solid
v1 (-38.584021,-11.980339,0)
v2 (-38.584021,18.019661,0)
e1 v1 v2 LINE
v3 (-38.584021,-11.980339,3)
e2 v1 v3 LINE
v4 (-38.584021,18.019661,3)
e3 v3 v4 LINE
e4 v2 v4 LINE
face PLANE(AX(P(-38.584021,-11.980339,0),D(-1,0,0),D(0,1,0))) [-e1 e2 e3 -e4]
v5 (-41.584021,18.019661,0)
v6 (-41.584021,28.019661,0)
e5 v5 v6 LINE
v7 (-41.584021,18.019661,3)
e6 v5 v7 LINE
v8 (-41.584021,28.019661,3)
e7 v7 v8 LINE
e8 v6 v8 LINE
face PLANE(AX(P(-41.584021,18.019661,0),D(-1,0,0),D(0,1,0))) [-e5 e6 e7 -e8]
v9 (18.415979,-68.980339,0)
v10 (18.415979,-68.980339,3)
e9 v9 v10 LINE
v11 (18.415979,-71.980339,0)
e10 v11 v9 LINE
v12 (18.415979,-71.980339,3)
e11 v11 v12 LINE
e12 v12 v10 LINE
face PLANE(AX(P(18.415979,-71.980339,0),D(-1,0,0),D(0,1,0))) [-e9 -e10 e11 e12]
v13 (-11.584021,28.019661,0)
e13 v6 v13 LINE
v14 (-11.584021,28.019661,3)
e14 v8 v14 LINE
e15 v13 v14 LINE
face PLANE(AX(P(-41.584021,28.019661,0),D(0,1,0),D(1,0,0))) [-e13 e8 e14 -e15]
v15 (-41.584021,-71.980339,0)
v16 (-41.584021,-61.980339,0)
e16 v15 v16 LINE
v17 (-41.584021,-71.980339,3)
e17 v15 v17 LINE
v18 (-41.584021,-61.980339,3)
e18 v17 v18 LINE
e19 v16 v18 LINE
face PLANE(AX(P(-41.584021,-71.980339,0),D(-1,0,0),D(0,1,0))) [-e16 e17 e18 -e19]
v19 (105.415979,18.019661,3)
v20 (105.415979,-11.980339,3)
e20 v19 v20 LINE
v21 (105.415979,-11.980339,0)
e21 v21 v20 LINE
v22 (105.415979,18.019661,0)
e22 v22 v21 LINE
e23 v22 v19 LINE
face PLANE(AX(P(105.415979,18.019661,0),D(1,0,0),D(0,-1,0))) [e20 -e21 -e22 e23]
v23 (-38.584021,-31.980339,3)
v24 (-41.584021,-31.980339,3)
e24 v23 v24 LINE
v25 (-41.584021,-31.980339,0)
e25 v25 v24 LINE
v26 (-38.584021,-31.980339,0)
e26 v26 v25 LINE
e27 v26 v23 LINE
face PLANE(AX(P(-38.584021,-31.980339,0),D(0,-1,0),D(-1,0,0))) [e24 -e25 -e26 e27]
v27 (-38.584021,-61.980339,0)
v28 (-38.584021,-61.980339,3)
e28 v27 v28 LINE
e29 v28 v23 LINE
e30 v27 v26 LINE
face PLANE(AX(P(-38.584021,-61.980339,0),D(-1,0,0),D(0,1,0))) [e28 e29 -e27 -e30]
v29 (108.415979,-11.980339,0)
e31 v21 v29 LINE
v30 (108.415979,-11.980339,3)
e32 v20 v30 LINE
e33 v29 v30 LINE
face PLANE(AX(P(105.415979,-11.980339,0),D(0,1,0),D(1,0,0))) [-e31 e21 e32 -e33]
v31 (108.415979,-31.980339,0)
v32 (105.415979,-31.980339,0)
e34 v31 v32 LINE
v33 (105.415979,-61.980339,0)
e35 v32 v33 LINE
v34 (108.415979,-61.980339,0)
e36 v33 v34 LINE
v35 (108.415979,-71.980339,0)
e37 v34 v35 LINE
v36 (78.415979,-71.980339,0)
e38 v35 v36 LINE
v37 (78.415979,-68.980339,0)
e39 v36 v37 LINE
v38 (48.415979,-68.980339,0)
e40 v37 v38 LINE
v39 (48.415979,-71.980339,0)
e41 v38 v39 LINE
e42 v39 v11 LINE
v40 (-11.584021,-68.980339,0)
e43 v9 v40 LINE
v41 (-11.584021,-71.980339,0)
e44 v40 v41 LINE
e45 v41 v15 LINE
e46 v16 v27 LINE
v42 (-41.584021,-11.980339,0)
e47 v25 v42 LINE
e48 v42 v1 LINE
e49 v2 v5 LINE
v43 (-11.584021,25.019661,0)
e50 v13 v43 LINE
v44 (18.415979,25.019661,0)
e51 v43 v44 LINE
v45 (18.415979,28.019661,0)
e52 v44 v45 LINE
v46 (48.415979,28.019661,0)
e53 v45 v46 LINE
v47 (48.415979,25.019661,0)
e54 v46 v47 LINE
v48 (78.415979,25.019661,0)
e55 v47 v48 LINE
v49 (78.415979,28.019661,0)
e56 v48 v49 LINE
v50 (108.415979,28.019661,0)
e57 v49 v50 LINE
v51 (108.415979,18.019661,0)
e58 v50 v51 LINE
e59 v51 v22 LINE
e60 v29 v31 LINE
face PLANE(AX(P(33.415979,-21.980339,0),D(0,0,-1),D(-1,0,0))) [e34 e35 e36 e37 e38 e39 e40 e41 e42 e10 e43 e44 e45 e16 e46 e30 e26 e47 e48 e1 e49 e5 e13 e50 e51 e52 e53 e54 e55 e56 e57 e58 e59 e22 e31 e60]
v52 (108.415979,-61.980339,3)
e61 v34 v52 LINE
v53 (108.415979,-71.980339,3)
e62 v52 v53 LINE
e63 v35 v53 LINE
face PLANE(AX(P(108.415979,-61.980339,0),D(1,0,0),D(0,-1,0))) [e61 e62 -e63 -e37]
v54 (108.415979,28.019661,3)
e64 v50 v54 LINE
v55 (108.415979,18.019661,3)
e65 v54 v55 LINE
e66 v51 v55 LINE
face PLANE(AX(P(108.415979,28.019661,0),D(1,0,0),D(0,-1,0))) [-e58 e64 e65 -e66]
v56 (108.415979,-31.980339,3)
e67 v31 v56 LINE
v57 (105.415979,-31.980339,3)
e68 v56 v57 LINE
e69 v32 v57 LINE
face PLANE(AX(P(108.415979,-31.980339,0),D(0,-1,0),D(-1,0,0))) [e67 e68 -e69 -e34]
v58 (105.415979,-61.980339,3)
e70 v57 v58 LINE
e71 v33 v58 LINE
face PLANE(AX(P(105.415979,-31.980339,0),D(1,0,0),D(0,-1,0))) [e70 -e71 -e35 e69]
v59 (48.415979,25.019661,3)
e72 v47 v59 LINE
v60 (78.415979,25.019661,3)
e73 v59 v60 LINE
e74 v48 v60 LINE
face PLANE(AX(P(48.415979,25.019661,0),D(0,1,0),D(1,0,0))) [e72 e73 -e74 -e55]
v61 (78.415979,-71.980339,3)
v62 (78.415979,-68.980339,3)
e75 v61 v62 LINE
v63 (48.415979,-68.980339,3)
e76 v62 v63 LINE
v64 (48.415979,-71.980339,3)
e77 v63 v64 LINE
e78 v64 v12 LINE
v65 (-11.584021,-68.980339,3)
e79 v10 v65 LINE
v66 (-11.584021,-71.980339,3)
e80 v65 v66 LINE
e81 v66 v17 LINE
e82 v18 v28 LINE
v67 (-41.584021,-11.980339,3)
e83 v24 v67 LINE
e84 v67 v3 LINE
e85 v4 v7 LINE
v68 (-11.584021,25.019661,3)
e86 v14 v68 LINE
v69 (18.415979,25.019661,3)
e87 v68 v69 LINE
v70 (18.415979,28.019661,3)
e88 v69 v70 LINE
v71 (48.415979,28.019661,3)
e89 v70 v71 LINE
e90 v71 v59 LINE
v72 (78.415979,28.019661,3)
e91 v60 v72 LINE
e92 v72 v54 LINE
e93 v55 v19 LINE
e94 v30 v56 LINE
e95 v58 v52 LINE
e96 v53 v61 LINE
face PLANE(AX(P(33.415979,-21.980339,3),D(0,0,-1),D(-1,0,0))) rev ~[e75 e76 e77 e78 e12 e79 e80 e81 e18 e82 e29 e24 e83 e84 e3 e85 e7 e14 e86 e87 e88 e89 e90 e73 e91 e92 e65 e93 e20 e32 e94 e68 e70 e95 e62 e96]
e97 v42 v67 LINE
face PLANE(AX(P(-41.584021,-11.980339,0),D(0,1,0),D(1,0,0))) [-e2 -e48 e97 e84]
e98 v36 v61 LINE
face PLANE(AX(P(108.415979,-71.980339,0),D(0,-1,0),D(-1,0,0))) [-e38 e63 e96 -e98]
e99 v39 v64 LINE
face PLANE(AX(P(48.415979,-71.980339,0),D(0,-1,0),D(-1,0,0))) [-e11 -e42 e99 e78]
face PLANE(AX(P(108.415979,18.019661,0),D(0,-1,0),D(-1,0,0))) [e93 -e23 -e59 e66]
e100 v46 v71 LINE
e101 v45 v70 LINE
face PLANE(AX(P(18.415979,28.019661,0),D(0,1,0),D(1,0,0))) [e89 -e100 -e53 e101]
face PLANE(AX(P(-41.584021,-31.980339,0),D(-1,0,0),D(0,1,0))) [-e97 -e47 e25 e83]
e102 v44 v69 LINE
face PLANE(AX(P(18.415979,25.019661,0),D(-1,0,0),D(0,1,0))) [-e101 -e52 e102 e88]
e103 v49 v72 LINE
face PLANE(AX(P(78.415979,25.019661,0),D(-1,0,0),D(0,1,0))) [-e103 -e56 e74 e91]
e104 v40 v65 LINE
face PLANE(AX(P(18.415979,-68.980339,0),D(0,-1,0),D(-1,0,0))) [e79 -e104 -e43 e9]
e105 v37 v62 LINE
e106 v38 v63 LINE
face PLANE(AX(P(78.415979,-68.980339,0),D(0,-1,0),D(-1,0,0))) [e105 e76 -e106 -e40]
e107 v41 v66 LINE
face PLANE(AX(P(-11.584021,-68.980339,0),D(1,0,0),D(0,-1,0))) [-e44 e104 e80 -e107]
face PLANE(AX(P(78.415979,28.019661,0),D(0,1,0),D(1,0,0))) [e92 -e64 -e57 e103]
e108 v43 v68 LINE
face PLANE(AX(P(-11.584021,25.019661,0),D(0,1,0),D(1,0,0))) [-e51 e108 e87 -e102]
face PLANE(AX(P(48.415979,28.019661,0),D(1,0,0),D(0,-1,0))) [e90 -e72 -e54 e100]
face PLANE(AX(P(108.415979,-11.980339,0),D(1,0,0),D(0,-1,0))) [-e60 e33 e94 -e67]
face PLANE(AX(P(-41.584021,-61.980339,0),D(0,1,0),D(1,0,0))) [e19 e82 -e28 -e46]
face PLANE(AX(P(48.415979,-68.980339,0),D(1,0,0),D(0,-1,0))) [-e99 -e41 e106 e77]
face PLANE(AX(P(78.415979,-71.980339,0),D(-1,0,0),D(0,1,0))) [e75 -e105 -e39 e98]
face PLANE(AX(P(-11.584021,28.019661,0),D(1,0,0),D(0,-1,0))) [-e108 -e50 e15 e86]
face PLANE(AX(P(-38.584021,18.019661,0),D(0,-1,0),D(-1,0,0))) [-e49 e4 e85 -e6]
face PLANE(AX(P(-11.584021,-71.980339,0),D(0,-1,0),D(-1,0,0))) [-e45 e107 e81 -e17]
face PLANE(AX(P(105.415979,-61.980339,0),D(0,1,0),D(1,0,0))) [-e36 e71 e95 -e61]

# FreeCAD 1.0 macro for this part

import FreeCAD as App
import Part
import Sketcher


def add_polygon(sketch, points):
    """Adds a closed chain of lines whose ends are joined by coincident constraints."""
    first, n = sketch.GeometryCount, len(points)
    for a, b in zip(points, points[1:] + points[:1]):
        sketch.addGeometry(Part.LineSegment(App.Vector(*a, 0), App.Vector(*b, 0)), False)
    for i in range(n):
        sketch.addConstraint(Sketcher.Constraint("Coincident", first + i, 2, first + (i + 1) % n, 1))

doc = App.newDocument("Part")
params = doc.addObject("Spreadsheet::Sheet", "Params")
for row, (alias, value) in enumerate([
    ("sketch1_width", "30 mm"),
    ("sketch1_width2", "3 mm"),
    ("sketch1_height", "10 mm"),
    ("sketch1_height2", "20 mm"),
    ("pad1_length", "3 mm"),
], start=1):
    params.set(f"A{row}", alias)
    params.set(f"B{row}", "=" + value)
    params.setAlias(f"B{row}", alias)

body = doc.addObject("PartDesign::Body", "Body")

sketch1 = body.newObject("Sketcher::SketchObject", "Sketch")
sketch1.AttachmentSupport = (doc.getObject("XY_Plane"), [""])
sketch1.MapMode = "FlatFace"
add_polygon(sketch1, [(48.4, 28), (18.4, 28), (18.4, 25), (-11.6, 25), (-11.6, 28), (-41.6, 28), (-41.6, 18), (-38.6, 18), (-38.6, -12), (-41.6, -12), (-41.6, -32), (-38.6, -32), (-38.6, -62), (-41.6, -62), (-41.6, -72), (-11.6, -72), (-11.6, -69), (18.4, -69), (18.4, -72), (48.4, -72), (48.4, -69), (78.4, -69), (78.4, -72), (108.4, -72), (108.4, -62), (105.4, -62), (105.4, -32), (108.4, -32), (108.4, -12), (105.4, -12), (105.4, 18), (108.4, 18), (108.4, 28), (78.4, 28), (78.4, 25), (48.4, 25)])
sketch1.addConstraint(Sketcher.Constraint("Horizontal", 0))
sketch1.addConstraint(Sketcher.Constraint("Vertical", 1))
sketch1.addConstraint(Sketcher.Constraint("Horizontal", 2))
sketch1.addConstraint(Sketcher.Constraint("Vertical", 3))
sketch1.addConstraint(Sketcher.Constraint("Horizontal", 4))
sketch1.addConstraint(Sketcher.Constraint("Vertical", 5))
sketch1.addConstraint(Sketcher.Constraint("Horizontal", 6))
sketch1.addConstraint(Sketcher.Constraint("Vertical", 7))
sketch1.addConstraint(Sketcher.Constraint("Horizontal", 8))
sketch1.addConstraint(Sketcher.Constraint("Vertical", 9))
sketch1.addConstraint(Sketcher.Constraint("Horizontal", 10))
sketch1.addConstraint(Sketcher.Constraint("Vertical", 11))
sketch1.addConstraint(Sketcher.Constraint("Horizontal", 12))
sketch1.addConstraint(Sketcher.Constraint("Vertical", 13))
sketch1.addConstraint(Sketcher.Constraint("Horizontal", 14))
sketch1.addConstraint(Sketcher.Constraint("Vertical", 15))
sketch1.addConstraint(Sketcher.Constraint("Horizontal", 16))
sketch1.addConstraint(Sketcher.Constraint("Vertical", 17))
sketch1.addConstraint(Sketcher.Constraint("Horizontal", 18))
sketch1.addConstraint(Sketcher.Constraint("Vertical", 19))
sketch1.addConstraint(Sketcher.Constraint("Horizontal", 20))
sketch1.addConstraint(Sketcher.Constraint("Vertical", 21))
sketch1.addConstraint(Sketcher.Constraint("Horizontal", 22))
sketch1.addConstraint(Sketcher.Constraint("Vertical", 23))
sketch1.addConstraint(Sketcher.Constraint("Horizontal", 24))
sketch1.addConstraint(Sketcher.Constraint("Vertical", 25))
sketch1.addConstraint(Sketcher.Constraint("Horizontal", 26))
sketch1.addConstraint(Sketcher.Constraint("Vertical", 27))
sketch1.addConstraint(Sketcher.Constraint("Horizontal", 28))
sketch1.addConstraint(Sketcher.Constraint("Vertical", 29))
sketch1.addConstraint(Sketcher.Constraint("Horizontal", 30))
sketch1.addConstraint(Sketcher.Constraint("Vertical", 31))
sketch1.addConstraint(Sketcher.Constraint("Horizontal", 32))
sketch1.addConstraint(Sketcher.Constraint("Vertical", 33))
sketch1.addConstraint(Sketcher.Constraint("Horizontal", 34))
sketch1.addConstraint(Sketcher.Constraint("Vertical", 35))
sketch1.addConstraint(Sketcher.Constraint("Horizontal", 0, 2, 3, 2))
sketch1.addConstraint(Sketcher.Constraint("Horizontal", 14, 2, 17, 2))
sketch1.addConstraint(Sketcher.Constraint("Horizontal", 16, 2, 19, 2))
sketch1.addConstraint(Sketcher.Constraint("Horizontal", 18, 2, 21, 2))
sketch1.addConstraint(Sketcher.Constraint("Horizontal", 12, 2, 23, 2))
sketch1.addConstraint(Sketcher.Constraint("Horizontal", 10, 2, 25, 2))
sketch1.addConstraint(Sketcher.Constraint("Horizontal", 8, 2, 27, 2))
sketch1.addConstraint(Sketcher.Constraint("Horizontal", 6, 2, 29, 2))
sketch1.addConstraint(Sketcher.Constraint("Horizontal", 4, 2, 31, 2))
sketch1.addConstraint(Sketcher.Constraint("Horizontal", 2, 2, 33, 2))
sketch1.addConstraint(Sketcher.Constraint("Vertical", 5, 2, 8, 2))
sketch1.addConstraint(Sketcher.Constraint("Vertical", 7, 2, 10, 2))
sketch1.addConstraint(Sketcher.Constraint("Vertical", 9, 2, 12, 2))
sketch1.addConstraint(Sketcher.Constraint("Vertical", 3, 2, 14, 2))
sketch1.addConstraint(Sketcher.Constraint("Vertical", 1, 2, 16, 2))
sketch1.addConstraint(Sketcher.Constraint("Vertical", 23, 2, 26, 2))
sketch1.addConstraint(Sketcher.Constraint("Vertical", 25, 2, 28, 2))
sketch1.addConstraint(Sketcher.Constraint("Vertical", 27, 2, 30, 2))
sketch1.addConstraint(Sketcher.Constraint("Vertical", 21, 2, 32, 2))
sketch1.addConstraint(Sketcher.Constraint("Vertical", 19, 2, 34, 2))
sketch1.addConstraint(Sketcher.Constraint("Equal", 0, 2))
sketch1.addConstraint(Sketcher.Constraint("Equal", 2, 4))
sketch1.addConstraint(Sketcher.Constraint("Equal", 18, 20))
sketch1.addConstraint(Sketcher.Constraint("Equal", 20, 22))
sketch1.addConstraint(Sketcher.Constraint("Equal", 12, 24))
sketch1.addConstraint(Sketcher.Constraint("Equal", 30, 1))
sketch1.addConstraint(Sketcher.Constraint("Equal", 34, 7))
sketch1.addConstraint(Sketcher.Constraint("Equal", 7, 11))
sketch1.addConstraint(Sketcher.Constraint("Equal", 5, 13))
sketch1.addConstraint(Sketcher.Constraint("Equal", 3, 15))
sketch1.addConstraint(Sketcher.Constraint("DistanceX", 0, 2, 0, 1, 30.0))
sketch1.addConstraint(Sketcher.Constraint("DistanceX", 6, 1, 6, 2, 3.0))
sketch1.addConstraint(Sketcher.Constraint("DistanceY", 5, 2, 5, 1, 10.0))
sketch1.addConstraint(Sketcher.Constraint("DistanceY", 9, 2, 9, 1, 20.0))
sketch1.addConstraint(Sketcher.Constraint("DistanceX", -1, 1, 0, 2, 18.415979))
sketch1.addConstraint(Sketcher.Constraint("DistanceY", -1, 1, 0, 2, 28.019661))
sketch1.setExpression("Constraints[102]", "Params.sketch1_width")
sketch1.setExpression("Constraints[103]", "Params.sketch1_width2")
sketch1.setExpression("Constraints[104]", "Params.sketch1_height")
sketch1.setExpression("Constraints[105]", "Params.sketch1_height2")
pad1 = body.newObject("PartDesign::Pad", "Pad")
pad1.Profile = sketch1
pad1.setExpression("Length", "Params.pad1_length")

doc.recompute()
